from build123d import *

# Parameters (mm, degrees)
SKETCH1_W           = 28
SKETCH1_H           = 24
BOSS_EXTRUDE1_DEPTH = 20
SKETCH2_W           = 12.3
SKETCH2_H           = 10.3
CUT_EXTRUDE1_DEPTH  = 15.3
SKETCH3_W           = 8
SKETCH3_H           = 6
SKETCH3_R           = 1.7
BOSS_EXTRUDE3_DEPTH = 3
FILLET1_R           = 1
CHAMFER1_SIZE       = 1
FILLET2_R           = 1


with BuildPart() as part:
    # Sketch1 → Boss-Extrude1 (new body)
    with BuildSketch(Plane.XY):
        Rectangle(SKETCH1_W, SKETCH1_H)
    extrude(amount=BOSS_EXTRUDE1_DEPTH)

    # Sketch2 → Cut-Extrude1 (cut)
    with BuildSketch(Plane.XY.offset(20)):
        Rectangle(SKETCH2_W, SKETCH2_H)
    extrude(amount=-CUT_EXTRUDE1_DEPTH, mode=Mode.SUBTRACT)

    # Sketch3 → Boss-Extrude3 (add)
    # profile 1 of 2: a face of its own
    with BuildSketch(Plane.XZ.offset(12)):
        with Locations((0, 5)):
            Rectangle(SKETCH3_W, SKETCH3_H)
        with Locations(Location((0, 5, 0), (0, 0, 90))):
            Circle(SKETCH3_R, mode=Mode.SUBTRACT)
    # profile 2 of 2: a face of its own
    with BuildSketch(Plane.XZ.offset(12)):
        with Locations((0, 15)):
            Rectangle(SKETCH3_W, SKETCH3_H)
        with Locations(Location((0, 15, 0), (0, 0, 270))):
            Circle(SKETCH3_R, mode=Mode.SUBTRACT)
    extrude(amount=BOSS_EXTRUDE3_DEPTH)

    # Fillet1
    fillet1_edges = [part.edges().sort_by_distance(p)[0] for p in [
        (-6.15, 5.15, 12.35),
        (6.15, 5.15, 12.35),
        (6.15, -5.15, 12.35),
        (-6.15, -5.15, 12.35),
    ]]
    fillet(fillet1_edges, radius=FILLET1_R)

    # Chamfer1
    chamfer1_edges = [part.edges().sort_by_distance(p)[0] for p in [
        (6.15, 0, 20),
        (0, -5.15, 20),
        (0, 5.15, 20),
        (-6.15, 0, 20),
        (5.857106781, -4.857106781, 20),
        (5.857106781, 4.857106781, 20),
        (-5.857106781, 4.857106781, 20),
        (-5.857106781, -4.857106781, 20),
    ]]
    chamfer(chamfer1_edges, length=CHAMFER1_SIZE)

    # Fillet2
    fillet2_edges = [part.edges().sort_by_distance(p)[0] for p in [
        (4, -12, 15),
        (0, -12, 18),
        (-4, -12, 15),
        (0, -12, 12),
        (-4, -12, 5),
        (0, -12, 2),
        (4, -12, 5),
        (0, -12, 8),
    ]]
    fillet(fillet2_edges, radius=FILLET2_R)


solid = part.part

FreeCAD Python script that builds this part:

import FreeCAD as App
import Part
import Sketcher
from FreeCAD import Vector
Q = App.Units.Quantity


def edges_at(feature, points):
    """Names of the edges that pass closest to the given points."""
    edges = feature.Shape.Edges
    near = lambda p: min(range(len(edges)), key=lambda i: edges[i].distToShape(Part.Vertex(*p))[0])
    return sorted({f"Edge{near(p) + 1}" for p in points})


def add_polygon(sketch, points):
    """Adds a closed chain of lines whose ends are joined by coincident constraints."""
    first, n = sketch.GeometryCount, len(points)
    for a, b in zip(points, points[1:] + points[:1]):
        sketch.addGeometry(Part.LineSegment(App.Vector(*a, 0), App.Vector(*b, 0)), False)
    for i in range(n):
        sketch.addConstraint(Sketcher.Constraint("Coincident", first + i, 2, first + (i + 1) % n, 1))

doc = App.newDocument("Part")
body = doc.addObject("PartDesign::Body", "Body")

sketch1 = doc.addObject("Sketcher::SketchObject", "Sketch")
body.addObject(sketch1)
sketch1.AttachmentSupport = (doc.XY_Plane, [""])
sketch1.MapMode = "FlatFace"
add_polygon(sketch1, [(-14, 12), (-14, -12), (14, -12), (14, 12)])
sketch1.addConstraint(Sketcher.Constraint("Vertical", 0))
sketch1.addConstraint(Sketcher.Constraint("Horizontal", 1))
sketch1.addConstraint(Sketcher.Constraint("Vertical", 2))
sketch1.addConstraint(Sketcher.Constraint("Horizontal", 3))
sketch1.addConstraint(Sketcher.Constraint("Symmetric", 0, 2, 2, 2, -1, 1))
sketch1.addConstraint(Sketcher.Constraint("DistanceX", 1, 1, 1, 2, Q("28 mm")))
sketch1.addConstraint(Sketcher.Constraint("DistanceY", 0, 2, 0, 1, Q("24 mm")))
pad1 = doc.addObject("PartDesign::Pad", "Pad")
body.addObject(pad1)
pad1.Profile = sketch1
pad1.Length = 20

sketch2 = doc.addObject("Sketcher::SketchObject", "Sketch001")
body.addObject(sketch2)
sketch2.AttachmentSupport = (doc.XY_Plane, [""])
sketch2.MapMode = "FlatFace"
sketch2.AttachmentOffset = App.Placement(Vector(0, 0, 20), App.Rotation())
add_polygon(sketch2, [(-6, 5), (-6, -5), (6, -5), (6, 5)])
sketch2.addConstraint(Sketcher.Constraint("Vertical", 0))
sketch2.addConstraint(Sketcher.Constraint("Horizontal", 1))
sketch2.addConstraint(Sketcher.Constraint("Vertical", 2))
sketch2.addConstraint(Sketcher.Constraint("Horizontal", 3))
sketch2.addConstraint(Sketcher.Constraint("Symmetric", 0, 2, 2, 2, -1, 1))
sketch2.addConstraint(Sketcher.Constraint("DistanceX", 1, 1, 1, 2, Q("12.3 mm")))
sketch2.addConstraint(Sketcher.Constraint("DistanceY", 0, 2, 0, 1, Q("10.3 mm")))
pocket1 = doc.addObject("PartDesign::Pocket", "Pocket")
body.addObject(pocket1)
pocket1.Profile = sketch2
pocket1.Length = 15.3

sketch3 = doc.addObject("Sketcher::SketchObject", "Sketch002")
body.addObject(sketch3)
sketch3.AttachmentSupport = (doc.XZ_Plane, [""])
sketch3.MapMode = "FlatFace"
sketch3.AttachmentOffset = App.Placement(Vector(0, 0, 12), App.Rotation())
add_polygon(sketch3, [(-4, 8), (-4, 2), (4, 2), (4, 8)])
sketch3.addGeometry(Part.Circle(Vector(0, 5, 0), Vector(0, 0, 1), 1.7), False)
add_polygon(sketch3, [(-4, 18), (-4, 12), (4, 12), (4, 18)])
sketch3.addGeometry(Part.Circle(Vector(0, 15, 0), Vector(0, 0, 1), 1.7), False)
sketch3.addConstraint(Sketcher.Constraint("Vertical", 0))
sketch3.addConstraint(Sketcher.Constraint("Horizontal", 1))
sketch3.addConstraint(Sketcher.Constraint("Vertical", 2))
sketch3.addConstraint(Sketcher.Constraint("Horizontal", 3))
sketch3.addConstraint(Sketcher.Constraint("Vertical", 5))
sketch3.addConstraint(Sketcher.Constraint("Horizontal", 6))
sketch3.addConstraint(Sketcher.Constraint("Vertical", 7))
sketch3.addConstraint(Sketcher.Constraint("Horizontal", 8))
sketch3.addConstraint(Sketcher.Constraint("Equal", 4, 9))
sketch3.addConstraint(Sketcher.Constraint("PointOnObject", 4, 3, -2))
sketch3.addConstraint(Sketcher.Constraint("PointOnObject", 9, 3, -2))
sketch3.addConstraint(Sketcher.Constraint("Vertical", 3, 2, 5, 2))
sketch3.addConstraint(Sketcher.Constraint("Vertical", 2, 2, 6, 2))
sketch3.addConstraint(Sketcher.Constraint("Equal", 2, 5))
sketch3.addConstraint(Sketcher.Constraint("Diameter", 4, Q("3.4 mm")))
sketch3.addConstraint(Sketcher.Constraint("DistanceX", 1, 1, 1, 2, Q("8 mm")))
sketch3.addConstraint(Sketcher.Constraint("DistanceY", 0, 2, 0, 1, Q("6 mm")))
sketch3.addConstraint(Sketcher.Constraint("DistanceY", -1, 1, 4, 3, Q("5 mm")))
sketch3.addConstraint(Sketcher.Constraint("DistanceY", -1, 1, 9, 3, Q("15 mm")))
sketch3.addConstraint(Sketcher.Constraint("DistanceX", 0, 2, -1, 1, Q("4 mm")))
sketch3.addConstraint(Sketcher.Constraint("DistanceY", -1, 1, 0, 2, Q("2 mm")))
sketch3.addConstraint(Sketcher.Constraint("DistanceY", -1, 1, 5, 2, Q("12 mm")))
pad2 = doc.addObject("PartDesign::Pad", "Pad001")
body.addObject(pad2)
pad2.Profile = sketch3
pad2.Length = 3
doc.recompute()

fillet = doc.addObject("PartDesign::Fillet", "Fillet")
body.addObject(fillet)
fillet.Base = (pad2, edges_at(pad2, [
    (-6.15, 5.15, 12.35),
    (6.15, 5.15, 12.35),
    (6.15, -5.15, 12.35),
    (-6.15, -5.15, 12.35),
]))
fillet.Radius = 1
doc.recompute()

chamfer = doc.addObject("PartDesign::Chamfer", "Chamfer")
body.addObject(chamfer)
chamfer.Base = (fillet, edges_at(fillet, [
    (6.15, 0, 20),
    (0, -5.15, 20),
    (0, 5.15, 20),
    (-6.15, 0, 20),
    (5.857, -4.857, 20),
    (5.857, 4.857, 20),
    (-5.857, 4.857, 20),
    (-5.857, -4.857, 20),
]))
chamfer.Size = 1
doc.recompute()

fillet2 = doc.addObject("PartDesign::Fillet", "Fillet001")
body.addObject(fillet2)
fillet2.Base = (chamfer, edges_at(chamfer, [
    (4, -12, 15),
    (0, -12, 18),
    (-4, -12, 15),
    (0, -12, 12),
    (-4, -12, 5),
    (0, -12, 2),
    (4, -12, 5),
    (0, -12, 8),
]))
fillet2.Radius = 1

doc.recompute()
